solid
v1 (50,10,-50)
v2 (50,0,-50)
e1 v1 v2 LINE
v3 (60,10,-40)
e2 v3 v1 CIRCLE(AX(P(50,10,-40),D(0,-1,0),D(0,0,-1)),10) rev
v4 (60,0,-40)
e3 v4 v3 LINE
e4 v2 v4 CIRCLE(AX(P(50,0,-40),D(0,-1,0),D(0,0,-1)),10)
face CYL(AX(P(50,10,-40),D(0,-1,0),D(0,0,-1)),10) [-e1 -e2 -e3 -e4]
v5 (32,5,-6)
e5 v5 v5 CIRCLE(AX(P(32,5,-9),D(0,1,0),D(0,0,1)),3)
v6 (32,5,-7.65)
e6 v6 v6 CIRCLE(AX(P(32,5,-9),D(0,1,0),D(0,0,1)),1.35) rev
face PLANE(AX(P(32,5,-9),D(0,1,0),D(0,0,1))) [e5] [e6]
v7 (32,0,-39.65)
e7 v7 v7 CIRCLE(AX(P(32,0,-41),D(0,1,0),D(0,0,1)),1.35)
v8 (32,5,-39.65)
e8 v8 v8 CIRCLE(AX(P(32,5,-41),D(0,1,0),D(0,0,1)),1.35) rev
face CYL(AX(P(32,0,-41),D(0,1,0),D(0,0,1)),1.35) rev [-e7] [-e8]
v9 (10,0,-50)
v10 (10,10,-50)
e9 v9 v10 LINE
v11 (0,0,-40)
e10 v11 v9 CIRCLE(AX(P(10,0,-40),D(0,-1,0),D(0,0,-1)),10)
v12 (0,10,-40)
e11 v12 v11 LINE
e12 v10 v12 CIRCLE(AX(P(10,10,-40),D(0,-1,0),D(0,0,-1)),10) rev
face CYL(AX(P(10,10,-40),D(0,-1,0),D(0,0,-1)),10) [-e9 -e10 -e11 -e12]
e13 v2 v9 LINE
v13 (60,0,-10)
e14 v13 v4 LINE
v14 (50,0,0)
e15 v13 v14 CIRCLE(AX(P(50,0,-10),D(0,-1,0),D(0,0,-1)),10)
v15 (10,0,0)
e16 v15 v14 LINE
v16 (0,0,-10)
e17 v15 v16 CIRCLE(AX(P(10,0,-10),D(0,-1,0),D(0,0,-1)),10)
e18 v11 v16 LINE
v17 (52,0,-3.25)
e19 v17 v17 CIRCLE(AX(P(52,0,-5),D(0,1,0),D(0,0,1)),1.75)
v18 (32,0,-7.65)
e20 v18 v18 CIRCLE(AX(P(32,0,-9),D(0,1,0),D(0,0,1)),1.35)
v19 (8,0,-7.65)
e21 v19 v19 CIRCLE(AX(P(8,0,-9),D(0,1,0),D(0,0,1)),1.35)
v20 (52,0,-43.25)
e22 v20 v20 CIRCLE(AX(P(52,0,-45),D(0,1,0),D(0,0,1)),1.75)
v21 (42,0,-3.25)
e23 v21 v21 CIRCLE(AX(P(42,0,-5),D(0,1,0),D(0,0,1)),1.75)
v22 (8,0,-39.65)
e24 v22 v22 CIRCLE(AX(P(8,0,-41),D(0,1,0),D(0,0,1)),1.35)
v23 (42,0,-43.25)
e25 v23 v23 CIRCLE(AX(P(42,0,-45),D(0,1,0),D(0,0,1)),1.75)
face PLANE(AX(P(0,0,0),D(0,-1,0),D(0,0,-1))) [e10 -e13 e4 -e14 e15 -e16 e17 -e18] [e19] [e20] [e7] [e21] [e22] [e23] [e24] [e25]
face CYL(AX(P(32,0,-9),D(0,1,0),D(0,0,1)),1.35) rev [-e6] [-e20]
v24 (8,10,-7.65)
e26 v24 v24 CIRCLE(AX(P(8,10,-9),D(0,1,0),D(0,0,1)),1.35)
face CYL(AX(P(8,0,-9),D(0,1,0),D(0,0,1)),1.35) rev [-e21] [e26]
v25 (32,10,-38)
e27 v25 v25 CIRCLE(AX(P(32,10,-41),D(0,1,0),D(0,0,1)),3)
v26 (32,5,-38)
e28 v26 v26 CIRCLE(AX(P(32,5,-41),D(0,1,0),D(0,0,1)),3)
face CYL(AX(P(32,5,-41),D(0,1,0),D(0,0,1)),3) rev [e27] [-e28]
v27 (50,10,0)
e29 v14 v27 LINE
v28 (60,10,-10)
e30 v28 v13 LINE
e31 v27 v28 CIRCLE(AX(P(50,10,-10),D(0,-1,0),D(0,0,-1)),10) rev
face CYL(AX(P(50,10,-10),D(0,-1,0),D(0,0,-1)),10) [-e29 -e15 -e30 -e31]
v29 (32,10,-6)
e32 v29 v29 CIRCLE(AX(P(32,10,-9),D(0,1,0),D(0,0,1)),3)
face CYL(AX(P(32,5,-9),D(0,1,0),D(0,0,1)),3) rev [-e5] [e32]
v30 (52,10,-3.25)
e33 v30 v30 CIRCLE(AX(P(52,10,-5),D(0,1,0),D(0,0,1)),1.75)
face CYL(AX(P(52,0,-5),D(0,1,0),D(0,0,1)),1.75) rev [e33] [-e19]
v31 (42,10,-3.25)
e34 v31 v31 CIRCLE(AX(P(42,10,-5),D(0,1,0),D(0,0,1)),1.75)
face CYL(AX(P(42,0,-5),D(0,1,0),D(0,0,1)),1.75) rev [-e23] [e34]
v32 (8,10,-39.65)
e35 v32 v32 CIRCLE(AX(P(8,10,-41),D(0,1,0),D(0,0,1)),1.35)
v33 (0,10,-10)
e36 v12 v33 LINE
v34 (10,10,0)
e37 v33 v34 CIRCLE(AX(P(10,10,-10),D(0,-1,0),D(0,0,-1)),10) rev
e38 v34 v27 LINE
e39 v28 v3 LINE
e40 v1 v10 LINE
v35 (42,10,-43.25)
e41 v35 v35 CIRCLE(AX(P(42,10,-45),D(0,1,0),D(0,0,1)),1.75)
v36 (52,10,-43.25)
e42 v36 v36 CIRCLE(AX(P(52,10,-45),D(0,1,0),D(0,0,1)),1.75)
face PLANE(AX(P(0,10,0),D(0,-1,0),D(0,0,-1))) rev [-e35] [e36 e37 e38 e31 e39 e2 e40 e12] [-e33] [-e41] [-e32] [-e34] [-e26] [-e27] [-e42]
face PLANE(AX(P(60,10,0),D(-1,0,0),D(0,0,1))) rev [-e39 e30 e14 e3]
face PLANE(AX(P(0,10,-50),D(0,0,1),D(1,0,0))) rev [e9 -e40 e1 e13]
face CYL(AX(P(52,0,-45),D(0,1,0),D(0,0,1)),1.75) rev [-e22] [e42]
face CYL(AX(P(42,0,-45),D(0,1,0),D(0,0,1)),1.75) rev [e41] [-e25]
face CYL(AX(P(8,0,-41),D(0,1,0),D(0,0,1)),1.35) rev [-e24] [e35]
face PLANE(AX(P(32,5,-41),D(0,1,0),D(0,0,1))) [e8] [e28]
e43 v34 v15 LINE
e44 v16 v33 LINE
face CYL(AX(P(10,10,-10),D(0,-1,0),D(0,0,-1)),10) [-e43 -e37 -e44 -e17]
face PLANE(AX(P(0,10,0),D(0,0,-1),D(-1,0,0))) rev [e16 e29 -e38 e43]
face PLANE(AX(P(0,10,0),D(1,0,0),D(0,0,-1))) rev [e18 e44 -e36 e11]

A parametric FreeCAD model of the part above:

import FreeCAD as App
import Part
import Sketcher

V = App.Vector
Q = App.Units.Quantity


def edges_at(feature, points):
    """Names of the edges that pass closest to the given points."""
    edges = feature.Shape.Edges
    near = lambda p: min(range(len(edges)), key=lambda i: edges[i].distToShape(Part.Vertex(*p))[0])
    return sorted({f"Edge{near(p) + 1}" for p in points})


def add_polygon(sketch, points):
    """Adds a closed chain of lines whose ends are joined by coincident constraints."""
    first, n = sketch.GeometryCount, len(points)
    for a, b in zip(points, points[1:] + points[:1]):
        sketch.addGeometry(Part.LineSegment(App.Vector(*a, 0), App.Vector(*b, 0)), False)
    for i in range(n):
        sketch.addConstraint(Sketcher.Constraint("Coincident", first + i, 2, first + (i + 1) % n, 1))

doc = App.newDocument("Part")
body = doc.addObject("PartDesign::Body", "Body")

sketch1 = body.newObject("Sketcher::SketchObject", "Sketch")
sketch1.AttachmentSupport = (doc.getObject("XZ_Plane"), [""])
sketch1.MapMode = "FlatFace"
add_polygon(sketch1, [(0, -50), (0, 0), (60, 0), (60, -50)])
sketch1.addConstraint([
    Sketcher.Constraint("Vertical", 0),
    Sketcher.Constraint("Horizontal", 1),
    Sketcher.Constraint("Vertical", 2),
    Sketcher.Constraint("Horizontal", 3),
    Sketcher.Constraint("Coincident", 0, 2, -1, 1),
    Sketcher.Constraint("DistanceX", 1, 1, 1, 2, Q("60 mm")),
    Sketcher.Constraint("DistanceY", 0, 1, 0, 2, Q("50 mm")),
])
pad1 = body.newObject("PartDesign::Pad", "Pad")
pad1.Profile = sketch1
pad1.Length = 10
pad1.Reversed = True

sketch2 = body.newObject("Sketcher::SketchObject", "Sketch001")
sketch2.AttachmentSupport = (doc.getObject("XZ_Plane"), [""])
sketch2.MapMode = "FlatFace"
sketch2.AttachmentOffset = App.Placement(V(0, 0, -10), App.Rotation())
sketch2.addGeometry([
    Part.Circle(V(8, -41, 0), V(0, 0, 1), 1.4),
    Part.Circle(V(8, -9, 0), V(0, 0, 1), 1.4),
    Part.Circle(V(32, -9, 0), V(0, 0, 1), 1.4),
    Part.Circle(V(32, -41, 0), V(0, 0, 1), 1.4),
], False)
sketch2.addConstraint([
    Sketcher.Constraint("Equal", 0, 1),
    Sketcher.Constraint("Equal", 1, 2),
    Sketcher.Constraint("Equal", 2, 3),
    Sketcher.Constraint("Horizontal", 1, 3, 2, 3),
    Sketcher.Constraint("Horizontal", 0, 3, 3, 3),
    Sketcher.Constraint("Vertical", 0, 3, 1, 3),
    Sketcher.Constraint("Vertical", 2, 3, 3, 3),
    Sketcher.Constraint("Diameter", 0, Q("2.7 mm")),
    Sketcher.Constraint("DistanceX", -1, 1, 0, 3, Q("8 mm")),
    Sketcher.Constraint("DistanceY", 0, 3, -1, 1, Q("41 mm")),
    Sketcher.Constraint("DistanceY", 1, 3, -1, 1, Q("9 mm")),
    Sketcher.Constraint("DistanceX", -1, 1, 2, 3, Q("32 mm")),
])
pocket1 = body.newObject("PartDesign::Pocket", "Pocket")
pocket1.Profile = sketch2
pocket1.Type = "ThroughAll"
pocket1.Reversed = True

sketch3 = body.newObject("Sketcher::SketchObject", "Sketch002")
sketch3.AttachmentSupport = (doc.getObject("XZ_Plane"), [""])
sketch3.MapMode = "FlatFace"
sketch3.AttachmentOffset = App.Placement(V(0, 0, -10), App.Rotation())
sketch3.addGeometry([
    Part.Circle(V(42, -45, 0), V(0, 0, 1), 1.8),
    Part.Circle(V(52, -45, 0), V(0, 0, 1), 1.8),
    Part.Circle(V(52, -5, 0), V(0, 0, 1), 1.8),
    Part.Circle(V(42, -5, 0), V(0, 0, 1), 1.8),
], False)
sketch3.addConstraint([
    Sketcher.Constraint("Equal", 0, 1),
    Sketcher.Constraint("Equal", 1, 2),
    Sketcher.Constraint("Equal", 2, 3),
    Sketcher.Constraint("Horizontal", 0, 3, 1, 3),
    Sketcher.Constraint("Horizontal", 2, 3, 3, 3),
    Sketcher.Constraint("Vertical", 1, 3, 2, 3),
    Sketcher.Constraint("Vertical", 0, 3, 3, 3),
    Sketcher.Constraint("Diameter", 0, Q("3.5 mm")),
    Sketcher.Constraint("DistanceX", -1, 1, 0, 3, Q("42 mm")),
    Sketcher.Constraint("DistanceY", 0, 3, -1, 1, Q("45 mm")),
    Sketcher.Constraint("DistanceX", -1, 1, 1, 3, Q("52 mm")),
    Sketcher.Constraint("DistanceY", 2, 3, -1, 1, Q("5 mm")),
])
pocket2 = body.newObject("PartDesign::Pocket", "Pocket001")
pocket2.Profile = sketch3
pocket2.Type = "ThroughAll"
pocket2.Reversed = True
doc.recompute()

fillet = body.newObject("PartDesign::Fillet", "Fillet")
fillet.Base = (pocket2, edges_at(pocket2, [
    (0, 5, -50),
    (60, 5, -50),
    (60, 5, 0),
    (0, 5, 0),
]))
fillet.Radius = 10

sketch4 = body.newObject("Sketcher::SketchObject", "Sketch003")
sketch4.AttachmentSupport = (doc.getObject("XZ_Plane"), [""])
sketch4.MapMode = "FlatFace"
sketch4.AttachmentOffset = App.Placement(V(0, 0, -10), App.Rotation())
sketch4.addGeometry([
    Part.Circle(V(32, -41, 0), V(0, 0, 1), 3),
    Part.Circle(V(32, -9, 0), V(0, 0, 1), 3),
], False)
sketch4.addConstraint([
    Sketcher.Constraint("Equal", 0, 1),
    Sketcher.Constraint("Vertical", 0, 3, 1, 3),
    Sketcher.Constraint("Diameter", 0, Q("6 mm")),
    Sketcher.Constraint("DistanceX", -1, 1, 0, 3, Q("32 mm")),
    Sketcher.Constraint("DistanceY", 0, 3, -1, 1, Q("41 mm")),
    Sketcher.Constraint("DistanceY", 1, 3, -1, 1, Q("9 mm")),
])
pocket3 = body.newObject("PartDesign::Pocket", "Pocket002")
pocket3.Profile = sketch4
pocket3.Length = 5
pocket3.Reversed = True

doc.recompute()
